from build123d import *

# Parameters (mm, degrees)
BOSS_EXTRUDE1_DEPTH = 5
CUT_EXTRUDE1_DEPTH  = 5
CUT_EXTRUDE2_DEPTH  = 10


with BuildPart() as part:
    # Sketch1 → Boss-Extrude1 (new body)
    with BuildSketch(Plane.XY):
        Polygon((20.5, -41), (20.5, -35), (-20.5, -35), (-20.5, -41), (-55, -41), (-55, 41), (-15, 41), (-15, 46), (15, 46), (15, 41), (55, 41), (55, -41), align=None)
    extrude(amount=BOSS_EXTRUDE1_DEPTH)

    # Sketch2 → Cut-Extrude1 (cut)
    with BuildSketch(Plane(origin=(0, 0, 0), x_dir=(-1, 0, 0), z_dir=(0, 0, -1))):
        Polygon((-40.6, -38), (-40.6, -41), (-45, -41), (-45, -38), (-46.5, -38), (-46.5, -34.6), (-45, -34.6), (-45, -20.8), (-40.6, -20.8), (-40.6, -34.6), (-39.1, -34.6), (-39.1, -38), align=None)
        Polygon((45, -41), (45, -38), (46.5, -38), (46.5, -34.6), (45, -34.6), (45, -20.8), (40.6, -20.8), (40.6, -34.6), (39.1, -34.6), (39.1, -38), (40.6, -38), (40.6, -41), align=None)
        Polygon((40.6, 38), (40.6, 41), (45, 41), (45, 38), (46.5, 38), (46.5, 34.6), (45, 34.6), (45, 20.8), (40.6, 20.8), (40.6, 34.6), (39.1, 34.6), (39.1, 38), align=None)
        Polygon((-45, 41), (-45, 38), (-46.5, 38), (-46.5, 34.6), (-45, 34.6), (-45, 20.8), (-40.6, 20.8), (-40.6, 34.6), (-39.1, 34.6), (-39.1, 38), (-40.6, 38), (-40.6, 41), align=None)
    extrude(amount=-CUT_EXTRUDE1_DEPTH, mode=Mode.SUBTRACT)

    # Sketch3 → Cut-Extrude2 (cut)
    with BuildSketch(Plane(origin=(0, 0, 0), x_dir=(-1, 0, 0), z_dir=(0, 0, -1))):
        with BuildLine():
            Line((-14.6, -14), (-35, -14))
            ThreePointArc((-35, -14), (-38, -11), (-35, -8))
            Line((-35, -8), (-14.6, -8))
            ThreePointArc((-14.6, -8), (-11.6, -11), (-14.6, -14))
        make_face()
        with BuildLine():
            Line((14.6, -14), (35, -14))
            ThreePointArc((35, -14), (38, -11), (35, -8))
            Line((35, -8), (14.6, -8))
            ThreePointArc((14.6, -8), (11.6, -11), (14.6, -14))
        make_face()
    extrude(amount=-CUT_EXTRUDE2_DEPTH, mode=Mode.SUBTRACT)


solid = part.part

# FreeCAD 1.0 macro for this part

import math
import FreeCAD as App
import Part
import Sketcher
from FreeCAD import Vector
Q = App.Units.Quantity

doc = App.newDocument("Part")
body = doc.addObject("PartDesign::Body", "Body")

# Sketch on XY plane
sketch1 = doc.addObject("Sketcher::SketchObject", "Sketch")
body.addObject(sketch1)
sketch1.AttachmentSupport = (doc.XY_Plane, [""])
sketch1.MapMode = "FlatFace"
sketch1.addGeometry(Part.LineSegment(Vector(20, -35, 0), Vector(20, -41, 0)), False)
sketch1.addGeometry(Part.LineSegment(Vector(20, -41, 0), Vector(55, -41, 0)), False)
sketch1.addGeometry(Part.LineSegment(Vector(55, -41, 0), Vector(55, 41, 0)), False)
sketch1.addGeometry(Part.LineSegment(Vector(55, 41, 0), Vector(15, 41, 0)), False)
sketch1.addGeometry(Part.LineSegment(Vector(15, 41, 0), Vector(15, 46, 0)), False)
sketch1.addGeometry(Part.LineSegment(Vector(15, 46, 0), Vector(-15, 46, 0)), False)
sketch1.addGeometry(Part.LineSegment(Vector(-15, 46, 0), Vector(-15, 41, 0)), False)
sketch1.addGeometry(Part.LineSegment(Vector(-15, 41, 0), Vector(-55, 41, 0)), False)
sketch1.addGeometry(Part.LineSegment(Vector(-55, 41, 0), Vector(-55, -41, 0)), False)
sketch1.addGeometry(Part.LineSegment(Vector(-55, -41, 0), Vector(-20, -41, 0)), False)
sketch1.addGeometry(Part.LineSegment(Vector(-20, -41, 0), Vector(-20, -35, 0)), False)
sketch1.addGeometry(Part.LineSegment(Vector(-20, -35, 0), Vector(20, -35, 0)), False)
sketch1.addConstraint(Sketcher.Constraint("Coincident", 0, 2, 1, 1))
sketch1.addConstraint(Sketcher.Constraint("Coincident", 1, 2, 2, 1))
sketch1.addConstraint(Sketcher.Constraint("Coincident", 2, 2, 3, 1))
sketch1.addConstraint(Sketcher.Constraint("Coincident", 3, 2, 4, 1))
sketch1.addConstraint(Sketcher.Constraint("Coincident", 4, 2, 5, 1))
sketch1.addConstraint(Sketcher.Constraint("Coincident", 5, 2, 6, 1))
sketch1.addConstraint(Sketcher.Constraint("Coincident", 6, 2, 7, 1))
sketch1.addConstraint(Sketcher.Constraint("Coincident", 7, 2, 8, 1))
sketch1.addConstraint(Sketcher.Constraint("Coincident", 8, 2, 9, 1))
sketch1.addConstraint(Sketcher.Constraint("Coincident", 9, 2, 10, 1))
sketch1.addConstraint(Sketcher.Constraint("Coincident", 10, 2, 11, 1))
sketch1.addConstraint(Sketcher.Constraint("Coincident", 11, 2, 0, 1))
sketch1.addConstraint(Sketcher.Constraint("Vertical", 0))
sketch1.addConstraint(Sketcher.Constraint("Horizontal", 1))
sketch1.addConstraint(Sketcher.Constraint("Vertical", 2))
sketch1.addConstraint(Sketcher.Constraint("Horizontal", 3))
sketch1.addConstraint(Sketcher.Constraint("Vertical", 4))
sketch1.addConstraint(Sketcher.Constraint("Horizontal", 5))
sketch1.addConstraint(Sketcher.Constraint("Vertical", 6))
sketch1.addConstraint(Sketcher.Constraint("Horizontal", 7))
sketch1.addConstraint(Sketcher.Constraint("Vertical", 8))
sketch1.addConstraint(Sketcher.Constraint("Horizontal", 9))
sketch1.addConstraint(Sketcher.Constraint("Vertical", 10))
sketch1.addConstraint(Sketcher.Constraint("Horizontal", 11))
sketch1.addConstraint(Sketcher.Constraint("Symmetric", 1, 2, 7, 2, -1, 1))
sketch1.addConstraint(Sketcher.Constraint("Symmetric", 3, 2, 6, 2, -2))
sketch1.addConstraint(Sketcher.Constraint("Symmetric", 0, 2, 9, 2, -2))
sketch1.addConstraint(Sketcher.Constraint("DistanceX", 3, 2, 3, 1, Q("40 mm")))
sketch1.addConstraint(Sketcher.Constraint("DistanceX", 5, 2, 5, 1, Q("30 mm")))
sketch1.addConstraint(Sketcher.Constraint("DistanceX", 11, 1, 11, 2, Q("41 mm")))
sketch1.addConstraint(Sketcher.Constraint("DistanceY", 0, 2, 0, 1, Q("6 mm")))
sketch1.addConstraint(Sketcher.Constraint("DistanceY", 2, 1, 2, 2, Q("82 mm")))
sketch1.addConstraint(Sketcher.Constraint("DistanceY", 4, 1, 4, 2, Q("5 mm")))
pad1 = doc.addObject("PartDesign::Pad", "Pad")
body.addObject(pad1)
pad1.Profile = sketch1
pad1.Length = 5

# Sketch on XY plane
sketch2 = doc.addObject("Sketcher::SketchObject", "Sketch001")
body.addObject(sketch2)
sketch2.AttachmentSupport = (doc.XY_Plane, [""])
sketch2.MapMode = "FlatFace"
sketch2.addGeometry(Part.LineSegment(Vector(40.6, -41, 0), Vector(40.6, -38, 0)), False)
sketch2.addGeometry(Part.LineSegment(Vector(40.6, -38, 0), Vector(39.1, -38, 0)), False)
sketch2.addGeometry(Part.LineSegment(Vector(39.1, -38, 0), Vector(39.1, -34.6, 0)), False)
sketch2.addGeometry(Part.LineSegment(Vector(39.1, -34.6, 0), Vector(40.6, -34.6, 0)), False)
sketch2.addGeometry(Part.LineSegment(Vector(40.6, -34.6, 0), Vector(40.6, -20.8, 0)), False)
sketch2.addGeometry(Part.LineSegment(Vector(40.6, -20.8, 0), Vector(45, -20.8, 0)), False)
sketch2.addGeometry(Part.LineSegment(Vector(45, -20.8, 0), Vector(45, -34.6, 0)), False)
sketch2.addGeometry(Part.LineSegment(Vector(45, -34.6, 0), Vector(46.5, -34.6, 0)), False)
sketch2.addGeometry(Part.LineSegment(Vector(46.5, -34.6, 0), Vector(46.5, -38, 0)), False)
sketch2.addGeometry(Part.LineSegment(Vector(46.5, -38, 0), Vector(45, -38, 0)), False)
sketch2.addGeometry(Part.LineSegment(Vector(45, -38, 0), Vector(45, -41, 0)), False)
sketch2.addGeometry(Part.LineSegment(Vector(45, -41, 0), Vector(40.6, -41, 0)), False)
sketch2.addGeometry(Part.LineSegment(Vector(-45, -41, 0), Vector(-45, -38, 0)), False)
sketch2.addGeometry(Part.LineSegment(Vector(-45, -38, 0), Vector(-46.5, -38, 0)), False)
sketch2.addGeometry(Part.LineSegment(Vector(-46.5, -38, 0), Vector(-46.5, -34.6, 0)), False)
sketch2.addGeometry(Part.LineSegment(Vector(-46.5, -34.6, 0), Vector(-45, -34.6, 0)), False)
sketch2.addGeometry(Part.LineSegment(Vector(-45, -34.6, 0), Vector(-45, -20.8, 0)), False)
sketch2.addGeometry(Part.LineSegment(Vector(-45, -20.8, 0), Vector(-40.6, -20.8, 0)), False)
sketch2.addGeometry(Part.LineSegment(Vector(-40.6, -20.8, 0), Vector(-40.6, -34.6, 0)), False)
sketch2.addGeometry(Part.LineSegment(Vector(-40.6, -34.6, 0), Vector(-39.1, -34.6, 0)), False)
sketch2.addGeometry(Part.LineSegment(Vector(-39.1, -34.6, 0), Vector(-39.1, -38, 0)), False)
sketch2.addGeometry(Part.LineSegment(Vector(-39.1, -38, 0), Vector(-40.6, -38, 0)), False)
sketch2.addGeometry(Part.LineSegment(Vector(-40.6, -38, 0), Vector(-40.6, -41, 0)), False)
sketch2.addGeometry(Part.LineSegment(Vector(-40.6, -41, 0), Vector(-45, -41, 0)), False)
sketch2.addGeometry(Part.LineSegment(Vector(-40.6, 41, 0), Vector(-40.6, 38, 0)), False)
sketch2.addGeometry(Part.LineSegment(Vector(-40.6, 38, 0), Vector(-39.1, 38, 0)), False)
sketch2.addGeometry(Part.LineSegment(Vector(-39.1, 38, 0), Vector(-39.1, 34.6, 0)), False)
sketch2.addGeometry(Part.LineSegment(Vector(-39.1, 34.6, 0), Vector(-40.6, 34.6, 0)), False)
sketch2.addGeometry(Part.LineSegment(Vector(-40.6, 34.6, 0), Vector(-40.6, 20.8, 0)), False)
sketch2.addGeometry(Part.LineSegment(Vector(-40.6, 20.8, 0), Vector(-45, 20.8, 0)), False)
sketch2.addGeometry(Part.LineSegment(Vector(-45, 20.8, 0), Vector(-45, 34.6, 0)), False)
sketch2.addGeometry(Part.LineSegment(Vector(-45, 34.6, 0), Vector(-46.5, 34.6, 0)), False)
sketch2.addGeometry(Part.LineSegment(Vector(-46.5, 34.6, 0), Vector(-46.5, 38, 0)), False)
sketch2.addGeometry(Part.LineSegment(Vector(-46.5, 38, 0), Vector(-45, 38, 0)), False)
sketch2.addGeometry(Part.LineSegment(Vector(-45, 38, 0), Vector(-45, 41, 0)), False)
sketch2.addGeometry(Part.LineSegment(Vector(-45, 41, 0), Vector(-40.6, 41, 0)), False)
sketch2.addGeometry(Part.LineSegment(Vector(45, 41, 0), Vector(45, 38, 0)), False)
sketch2.addGeometry(Part.LineSegment(Vector(45, 38, 0), Vector(46.5, 38, 0)), False)
sketch2.addGeometry(Part.LineSegment(Vector(46.5, 38, 0), Vector(46.5, 34.6, 0)), False)
sketch2.addGeometry(Part.LineSegment(Vector(46.5, 34.6, 0), Vector(45, 34.6, 0)), False)
sketch2.addGeometry(Part.LineSegment(Vector(45, 34.6, 0), Vector(45, 20.8, 0)), False)
sketch2.addGeometry(Part.LineSegment(Vector(45, 20.8, 0), Vector(40.6, 20.8, 0)), False)
sketch2.addGeometry(Part.LineSegment(Vector(40.6, 20.8, 0), Vector(40.6, 34.6, 0)), False)
sketch2.addGeometry(Part.LineSegment(Vector(40.6, 34.6, 0), Vector(39.1, 34.6, 0)), False)
sketch2.addGeometry(Part.LineSegment(Vector(39.1, 34.6, 0), Vector(39.1, 38, 0)), False)
sketch2.addGeometry(Part.LineSegment(Vector(39.1, 38, 0), Vector(40.6, 38, 0)), False)
sketch2.addGeometry(Part.LineSegment(Vector(40.6, 38, 0), Vector(40.6, 41, 0)), False)
sketch2.addGeometry(Part.LineSegment(Vector(40.6, 41, 0), Vector(45, 41, 0)), False)
sketch2.addConstraint(Sketcher.Constraint("Coincident", 0, 2, 1, 1))
sketch2.addConstraint(Sketcher.Constraint("Coincident", 1, 2, 2, 1))
sketch2.addConstraint(Sketcher.Constraint("Coincident", 2, 2, 3, 1))
sketch2.addConstraint(Sketcher.Constraint("Coincident", 3, 2, 4, 1))
sketch2.addConstraint(Sketcher.Constraint("Coincident", 4, 2, 5, 1))
sketch2.addConstraint(Sketcher.Constraint("Coincident", 5, 2, 6, 1))
sketch2.addConstraint(Sketcher.Constraint("Coincident", 6, 2, 7, 1))
sketch2.addConstraint(Sketcher.Constraint("Coincident", 7, 2, 8, 1))
sketch2.addConstraint(Sketcher.Constraint("Coincident", 8, 2, 9, 1))
sketch2.addConstraint(Sketcher.Constraint("Coincident", 9, 2, 10, 1))
sketch2.addConstraint(Sketcher.Constraint("Coincident", 10, 2, 11, 1))
sketch2.addConstraint(Sketcher.Constraint("Coincident", 11, 2, 0, 1))
sketch2.addConstraint(Sketcher.Constraint("Coincident", 12, 2, 13, 1))
sketch2.addConstraint(Sketcher.Constraint("Coincident", 13, 2, 14, 1))
sketch2.addConstraint(Sketcher.Constraint("Coincident", 14, 2, 15, 1))
sketch2.addConstraint(Sketcher.Constraint("Coincident", 15, 2, 16, 1))
sketch2.addConstraint(Sketcher.Constraint("Coincident", 16, 2, 17, 1))
sketch2.addConstraint(Sketcher.Constraint("Coincident", 17, 2, 18, 1))
sketch2.addConstraint(Sketcher.Constraint("Coincident", 18, 2, 19, 1))
sketch2.addConstraint(Sketcher.Constraint("Coincident", 19, 2, 20, 1))
sketch2.addConstraint(Sketcher.Constraint("Coincident", 20, 2, 21, 1))
sketch2.addConstraint(Sketcher.Constraint("Coincident", 21, 2, 22, 1))
sketch2.addConstraint(Sketcher.Constraint("Coincident", 22, 2, 23, 1))
sketch2.addConstraint(Sketcher.Constraint("Coincident", 23, 2, 12, 1))
sketch2.addConstraint(Sketcher.Constraint("Coincident", 24, 2, 25, 1))
sketch2.addConstraint(Sketcher.Constraint("Coincident", 25, 2, 26, 1))
sketch2.addConstraint(Sketcher.Constraint("Coincident", 26, 2, 27, 1))
sketch2.addConstraint(Sketcher.Constraint("Coincident", 27, 2, 28, 1))
sketch2.addConstraint(Sketcher.Constraint("Coincident", 28, 2, 29, 1))
sketch2.addConstraint(Sketcher.Constraint("Coincident", 29, 2, 30, 1))
sketch2.addConstraint(Sketcher.Constraint("Coincident", 30, 2, 31, 1))
sketch2.addConstraint(Sketcher.Constraint("Coincident", 31, 2, 32, 1))
sketch2.addConstraint(Sketcher.Constraint("Coincident", 32, 2, 33, 1))
sketch2.addConstraint(Sketcher.Constraint("Coincident", 33, 2, 34, 1))
sketch2.addConstraint(Sketcher.Constraint("Coincident", 34, 2, 35, 1))
sketch2.addConstraint(Sketcher.Constraint("Coincident", 35, 2, 24, 1))
sketch2.addConstraint(Sketcher.Constraint("Coincident", 36, 2, 37, 1))
sketch2.addConstraint(Sketcher.Constraint("Coincident", 37, 2, 38, 1))
sketch2.addConstraint(Sketcher.Constraint("Coincident", 38, 2, 39, 1))
sketch2.addConstraint(Sketcher.Constraint("Coincident", 39, 2, 40, 1))
sketch2.addConstraint(Sketcher.Constraint("Coincident", 40, 2, 41, 1))
sketch2.addConstraint(Sketcher.Constraint("Coincident", 41, 2, 42, 1))
sketch2.addConstraint(Sketcher.Constraint("Coincident", 42, 2, 43, 1))
sketch2.addConstraint(Sketcher.Constraint("Coincident", 43, 2, 44, 1))
sketch2.addConstraint(Sketcher.Constraint("Coincident", 44, 2, 45, 1))
sketch2.addConstraint(Sketcher.Constraint("Coincident", 45, 2, 46, 1))
sketch2.addConstraint(Sketcher.Constraint("Coincident", 46, 2, 47, 1))
sketch2.addConstraint(Sketcher.Constraint("Coincident", 47, 2, 36, 1))
sketch2.addConstraint(Sketcher.Constraint("Vertical", 0))
sketch2.addConstraint(Sketcher.Constraint("Horizontal", 1))
sketch2.addConstraint(Sketcher.Constraint("Vertical", 2))
sketch2.addConstraint(Sketcher.Constraint("Horizontal", 3))
sketch2.addConstraint(Sketcher.Constraint("Vertical", 4))
sketch2.addConstraint(Sketcher.Constraint("Horizontal", 5))
sketch2.addConstraint(Sketcher.Constraint("Vertical", 6))
sketch2.addConstraint(Sketcher.Constraint("Horizontal", 7))
sketch2.addConstraint(Sketcher.Constraint("Vertical", 8))
sketch2.addConstraint(Sketcher.Constraint("Horizontal", 9))
sketch2.addConstraint(Sketcher.Constraint("Vertical", 10))
sketch2.addConstraint(Sketcher.Constraint("Horizontal", 11))
sketch2.addConstraint(Sketcher.Constraint("Vertical", 12))
sketch2.addConstraint(Sketcher.Constraint("Horizontal", 13))
sketch2.addConstraint(Sketcher.Constraint("Vertical", 14))
sketch2.addConstraint(Sketcher.Constraint("Horizontal", 15))
sketch2.addConstraint(Sketcher.Constraint("Vertical", 16))
sketch2.addConstraint(Sketcher.Constraint("Horizontal", 17))
sketch2.addConstraint(Sketcher.Constraint("Vertical", 18))
sketch2.addConstraint(Sketcher.Constraint("Horizontal", 19))
sketch2.addConstraint(Sketcher.Constraint("Vertical", 20))
sketch2.addConstraint(Sketcher.Constraint("Horizontal", 21))
sketch2.addConstraint(Sketcher.Constraint("Vertical", 22))
sketch2.addConstraint(Sketcher.Constraint("Horizontal", 23))
sketch2.addConstraint(Sketcher.Constraint("Vertical", 24))
sketch2.addConstraint(Sketcher.Constraint("Horizontal", 25))
sketch2.addConstraint(Sketcher.Constraint("Vertical", 26))
sketch2.addConstraint(Sketcher.Constraint("Horizontal", 27))
sketch2.addConstraint(Sketcher.Constraint("Vertical", 28))
sketch2.addConstraint(Sketcher.Constraint("Horizontal", 29))
sketch2.addConstraint(Sketcher.Constraint("Vertical", 30))
sketch2.addConstraint(Sketcher.Constraint("Horizontal", 31))
sketch2.addConstraint(Sketcher.Constraint("Vertical", 32))
sketch2.addConstraint(Sketcher.Constraint("Horizontal", 33))
sketch2.addConstraint(Sketcher.Constraint("Vertical", 34))
sketch2.addConstraint(Sketcher.Constraint("Horizontal", 35))
sketch2.addConstraint(Sketcher.Constraint("Vertical", 36))
sketch2.addConstraint(Sketcher.Constraint("Horizontal", 37))
sketch2.addConstraint(Sketcher.Constraint("Vertical", 38))
sketch2.addConstraint(Sketcher.Constraint("Horizontal", 39))
sketch2.addConstraint(Sketcher.Constraint("Vertical", 40))
sketch2.addConstraint(Sketcher.Constraint("Horizontal", 41))
sketch2.addConstraint(Sketcher.Constraint("Vertical", 42))
sketch2.addConstraint(Sketcher.Constraint("Horizontal", 43))
sketch2.addConstraint(Sketcher.Constraint("Vertical", 44))
sketch2.addConstraint(Sketcher.Constraint("Horizontal", 45))
sketch2.addConstraint(Sketcher.Constraint("Vertical", 46))
sketch2.addConstraint(Sketcher.Constraint("Horizontal", 47))
sketch2.addConstraint(Sketcher.Constraint("Symmetric", 0, 2, 24, 2, -1, 1))
sketch2.addConstraint(Sketcher.Constraint("Symmetric", 2, 2, 26, 2, -1, 1))
sketch2.addConstraint(Sketcher.Constraint("Symmetric", 4, 2, 28, 2, -1, 1))
sketch2.addConstraint(Sketcher.Constraint("Symmetric", 6, 2, 30, 2, -1, 1))
sketch2.addConstraint(Sketcher.Constraint("Symmetric", 8, 2, 32, 2, -1, 1))
sketch2.addConstraint(Sketcher.Constraint("Symmetric", 10, 2, 34, 2, -1, 1))
sketch2.addConstraint(Sketcher.Constraint("Symmetric", 12, 2, 36, 2, -1, 1))
sketch2.addConstraint(Sketcher.Constraint("Symmetric", 14, 2, 38, 2, -1, 1))
sketch2.addConstraint(Sketcher.Constraint("Symmetric", 16, 2, 40, 2, -1, 1))
sketch2.addConstraint(Sketcher.Constraint("Symmetric", 18, 2, 42, 2, -1, 1))
sketch2.addConstraint(Sketcher.Constraint("Symmetric", 20, 2, 44, 2, -1, 1))
sketch2.addConstraint(Sketcher.Constraint("Symmetric", 22, 2, 46, 2, -1, 1))
sketch2.addConstraint(Sketcher.Constraint("Symmetric", 9, 2, 12, 2, -2))
sketch2.addConstraint(Sketcher.Constraint("Symmetric", 7, 2, 14, 2, -2))
sketch2.addConstraint(Sketcher.Constraint("Symmetric", 5, 2, 16, 2, -2))
sketch2.addConstraint(Sketcher.Constraint("Symmetric", 3, 2, 18, 2, -2))
sketch2.addConstraint(Sketcher.Constraint("Symmetric", 1, 2, 20, 2, -2))
sketch2.addConstraint(Sketcher.Constraint("Symmetric", 11, 2, 22, 2, -2))
sketch2.addConstraint(Sketcher.Constraint("Horizontal", 3, 2, 6, 2))
sketch2.addConstraint(Sketcher.Constraint("Horizontal", 1, 2, 8, 2))
sketch2.addConstraint(Sketcher.Constraint("Vertical", 0, 2, 3, 2))
sketch2.addConstraint(Sketcher.Constraint("Vertical", 6, 2, 9, 2))
sketch2.addConstraint(Sketcher.Constraint("Equal", 3, 7))
sketch2.addConstraint(Sketcher.Constraint("DistanceY", 0, 1, 0, 2, Q("3 mm")))
sketch2.addConstraint(Sketcher.Constraint("DistanceX", 1, 2, 1, 1, Q("1.5 mm")))
sketch2.addConstraint(Sketcher.Constraint("DistanceX", 5, 1, 5, 2, Q("4.4 mm")))
sketch2.addConstraint(Sketcher.Constraint("DistanceY", 2, 1, 2, 2, Q("3.4 mm")))
sketch2.addConstraint(Sketcher.Constraint("DistanceY", 4, 1, 4, 2, Q("13.8 mm")))
sketch2.addConstraint(Sketcher.Constraint("DistanceY", 0, 2, -1, 1, Q("38 mm")))
sketch2.addConstraint(Sketcher.Constraint("DistanceX", -1, 1, 5, 2, Q("45 mm")))
pocket1 = doc.addObject("PartDesign::Pocket", "Pocket")
body.addObject(pocket1)
pocket1.Profile = sketch2
pocket1.Length = 5
pocket1.Reversed = True

# Sketch on XY plane
sketch3 = doc.addObject("Sketcher::SketchObject", "Sketch002")
body.addObject(sketch3)
sketch3.AttachmentSupport = (doc.XY_Plane, [""])
sketch3.MapMode = "FlatFace"
sketch3.addGeometry(Part.LineSegment(Vector(35, -14, 0), Vector(14.6, -14, 0)), False)
sketch3.addGeometry(Part.ArcOfCircle(Part.Circle(Vector(14.6, -11, 0), Vector(0, 0, 1), 3), math.radians(90), math.radians(270)), False)
sketch3.addGeometry(Part.LineSegment(Vector(14.6, -8, 0), Vector(35, -8, 0)), False)
sketch3.addGeometry(Part.ArcOfCircle(Part.Circle(Vector(35, -11, 0), Vector(0, 0, 1), 3), math.radians(-90), math.radians(90)), False)
sketch3.addGeometry(Part.LineSegment(Vector(-14.6, -14, 0), Vector(-35, -14, 0)), False)
sketch3.addGeometry(Part.ArcOfCircle(Part.Circle(Vector(-35, -11, 0), Vector(0, 0, 1), 3), math.radians(90), math.radians(270)), False)
sketch3.addGeometry(Part.LineSegment(Vector(-35, -8, 0), Vector(-14.6, -8, 0)), False)
sketch3.addGeometry(Part.ArcOfCircle(Part.Circle(Vector(-14.6, -11, 0), Vector(0, 0, 1), 3), math.radians(-90), math.radians(90)), False)
sketch3.addConstraint(Sketcher.Constraint("Tangent", 0, 2, 1, 2))
sketch3.addConstraint(Sketcher.Constraint("Tangent", 1, 1, 2, 1))
sketch3.addConstraint(Sketcher.Constraint("Tangent", 2, 2, 3, 2))
sketch3.addConstraint(Sketcher.Constraint("Tangent", 3, 1, 0, 1))
sketch3.addConstraint(Sketcher.Constraint("Tangent", 4, 2, 5, 2))
sketch3.addConstraint(Sketcher.Constraint("Tangent", 5, 1, 6, 1))
sketch3.addConstraint(Sketcher.Constraint("Tangent", 6, 2, 7, 2))
sketch3.addConstraint(Sketcher.Constraint("Tangent", 7, 1, 4, 1))
sketch3.addConstraint(Sketcher.Constraint("Horizontal", 0))
sketch3.addConstraint(Sketcher.Constraint("Horizontal", 2))
sketch3.addConstraint(Sketcher.Constraint("Horizontal", 4))
sketch3.addConstraint(Sketcher.Constraint("Horizontal", 6))
sketch3.addConstraint(Sketcher.Constraint("Equal", 3, 5))
sketch3.addConstraint(Sketcher.Constraint("Symmetric", 3, 3, 5, 3, -2))
sketch3.addConstraint(Sketcher.Constraint("Equal", 2, 4))
sketch3.addConstraint(Sketcher.Constraint("Radius", 1, Q("3 mm")))
sketch3.addConstraint(Sketcher.Constraint("DistanceX", 0, 2, 0, 1, Q("20.4 mm")))
sketch3.addConstraint(Sketcher.Constraint("DistanceY", 1, 3, -1, 1, Q("11 mm")))
sketch3.addConstraint(Sketcher.Constraint("DistanceX", -1, 1, 3, 3, Q("35 mm")))
pocket2 = doc.addObject("PartDesign::Pocket", "Pocket001")
body.addObject(pocket2)
pocket2.Profile = sketch3
pocket2.Length = 10
pocket2.Reversed = True

doc.recompute()
